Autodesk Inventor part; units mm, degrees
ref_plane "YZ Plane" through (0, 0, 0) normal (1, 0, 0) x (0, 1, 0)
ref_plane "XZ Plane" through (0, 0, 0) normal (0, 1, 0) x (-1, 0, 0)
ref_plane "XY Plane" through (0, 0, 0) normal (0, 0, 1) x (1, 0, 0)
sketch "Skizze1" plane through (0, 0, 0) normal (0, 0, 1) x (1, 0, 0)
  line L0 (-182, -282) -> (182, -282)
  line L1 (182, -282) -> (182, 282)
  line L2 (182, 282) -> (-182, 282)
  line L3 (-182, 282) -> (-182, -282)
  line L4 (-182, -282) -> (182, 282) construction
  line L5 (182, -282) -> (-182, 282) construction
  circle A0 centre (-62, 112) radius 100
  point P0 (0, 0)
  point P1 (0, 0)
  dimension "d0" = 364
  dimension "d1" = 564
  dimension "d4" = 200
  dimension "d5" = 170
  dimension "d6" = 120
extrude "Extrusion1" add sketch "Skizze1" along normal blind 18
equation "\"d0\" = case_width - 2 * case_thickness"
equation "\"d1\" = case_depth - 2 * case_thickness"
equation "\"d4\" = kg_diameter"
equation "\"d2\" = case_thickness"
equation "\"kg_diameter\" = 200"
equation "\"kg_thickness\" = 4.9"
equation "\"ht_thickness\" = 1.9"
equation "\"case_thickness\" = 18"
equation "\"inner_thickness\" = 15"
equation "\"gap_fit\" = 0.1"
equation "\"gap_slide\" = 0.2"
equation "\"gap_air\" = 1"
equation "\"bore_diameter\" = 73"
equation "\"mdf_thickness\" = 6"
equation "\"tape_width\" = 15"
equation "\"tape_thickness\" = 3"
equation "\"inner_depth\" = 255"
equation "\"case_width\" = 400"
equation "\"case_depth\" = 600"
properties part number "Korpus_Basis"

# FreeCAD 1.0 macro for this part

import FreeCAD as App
import Part
import Sketcher

V = App.Vector


def add_polygon(sketch, points):
    """Adds a closed chain of lines whose ends are joined by coincident constraints."""
    first, n = sketch.GeometryCount, len(points)
    for a, b in zip(points, points[1:] + points[:1]):
        sketch.addGeometry(Part.LineSegment(App.Vector(*a, 0), App.Vector(*b, 0)), False)
    for i in range(n):
        sketch.addConstraint(Sketcher.Constraint("Coincident", first + i, 2, first + (i + 1) % n, 1))

doc = App.newDocument("Part")
body = doc.addObject("PartDesign::Body", "Body")

# Sketch on XY plane
sketch1 = body.newObject("Sketcher::SketchObject", "Sketch")
sketch1.AttachmentSupport = (doc.getObject("XY_Plane"), [""])
sketch1.MapMode = "FlatFace"
add_polygon(sketch1, [(-182, 282), (-182, -282), (182, -282), (182, 282)])  # lines 0-3
sketch1.addGeometry(Part.Circle(V(-62, 112, 0), V(0, 0, 1), 100), False)  # 4
sketch1.addConstraint(Sketcher.Constraint("Vertical", 0))
sketch1.addConstraint(Sketcher.Constraint("Horizontal", 1))
sketch1.addConstraint(Sketcher.Constraint("Vertical", 2))
sketch1.addConstraint(Sketcher.Constraint("Horizontal", 3))
sketch1.addConstraint(Sketcher.Constraint("Symmetric", 0, 2, 2, 2, -1, 1))
sketch1.addConstraint(Sketcher.Constraint("Diameter", 4, 200.0))
sketch1.addConstraint(Sketcher.Constraint("DistanceX", 1, 1, 1, 2, 364.0))
sketch1.addConstraint(Sketcher.Constraint("DistanceY", 0, 2, 0, 1, 564.0))
sketch1.addConstraint(Sketcher.Constraint("DistanceX", 0, 2, 4, 3, 120.0))
sketch1.addConstraint(Sketcher.Constraint("DistanceY", 4, 3, 2, 2, 170.0))
pad1 = body.newObject("PartDesign::Pad", "Pad")
pad1.Profile = sketch1
pad1.Length = 18

doc.recompute()
